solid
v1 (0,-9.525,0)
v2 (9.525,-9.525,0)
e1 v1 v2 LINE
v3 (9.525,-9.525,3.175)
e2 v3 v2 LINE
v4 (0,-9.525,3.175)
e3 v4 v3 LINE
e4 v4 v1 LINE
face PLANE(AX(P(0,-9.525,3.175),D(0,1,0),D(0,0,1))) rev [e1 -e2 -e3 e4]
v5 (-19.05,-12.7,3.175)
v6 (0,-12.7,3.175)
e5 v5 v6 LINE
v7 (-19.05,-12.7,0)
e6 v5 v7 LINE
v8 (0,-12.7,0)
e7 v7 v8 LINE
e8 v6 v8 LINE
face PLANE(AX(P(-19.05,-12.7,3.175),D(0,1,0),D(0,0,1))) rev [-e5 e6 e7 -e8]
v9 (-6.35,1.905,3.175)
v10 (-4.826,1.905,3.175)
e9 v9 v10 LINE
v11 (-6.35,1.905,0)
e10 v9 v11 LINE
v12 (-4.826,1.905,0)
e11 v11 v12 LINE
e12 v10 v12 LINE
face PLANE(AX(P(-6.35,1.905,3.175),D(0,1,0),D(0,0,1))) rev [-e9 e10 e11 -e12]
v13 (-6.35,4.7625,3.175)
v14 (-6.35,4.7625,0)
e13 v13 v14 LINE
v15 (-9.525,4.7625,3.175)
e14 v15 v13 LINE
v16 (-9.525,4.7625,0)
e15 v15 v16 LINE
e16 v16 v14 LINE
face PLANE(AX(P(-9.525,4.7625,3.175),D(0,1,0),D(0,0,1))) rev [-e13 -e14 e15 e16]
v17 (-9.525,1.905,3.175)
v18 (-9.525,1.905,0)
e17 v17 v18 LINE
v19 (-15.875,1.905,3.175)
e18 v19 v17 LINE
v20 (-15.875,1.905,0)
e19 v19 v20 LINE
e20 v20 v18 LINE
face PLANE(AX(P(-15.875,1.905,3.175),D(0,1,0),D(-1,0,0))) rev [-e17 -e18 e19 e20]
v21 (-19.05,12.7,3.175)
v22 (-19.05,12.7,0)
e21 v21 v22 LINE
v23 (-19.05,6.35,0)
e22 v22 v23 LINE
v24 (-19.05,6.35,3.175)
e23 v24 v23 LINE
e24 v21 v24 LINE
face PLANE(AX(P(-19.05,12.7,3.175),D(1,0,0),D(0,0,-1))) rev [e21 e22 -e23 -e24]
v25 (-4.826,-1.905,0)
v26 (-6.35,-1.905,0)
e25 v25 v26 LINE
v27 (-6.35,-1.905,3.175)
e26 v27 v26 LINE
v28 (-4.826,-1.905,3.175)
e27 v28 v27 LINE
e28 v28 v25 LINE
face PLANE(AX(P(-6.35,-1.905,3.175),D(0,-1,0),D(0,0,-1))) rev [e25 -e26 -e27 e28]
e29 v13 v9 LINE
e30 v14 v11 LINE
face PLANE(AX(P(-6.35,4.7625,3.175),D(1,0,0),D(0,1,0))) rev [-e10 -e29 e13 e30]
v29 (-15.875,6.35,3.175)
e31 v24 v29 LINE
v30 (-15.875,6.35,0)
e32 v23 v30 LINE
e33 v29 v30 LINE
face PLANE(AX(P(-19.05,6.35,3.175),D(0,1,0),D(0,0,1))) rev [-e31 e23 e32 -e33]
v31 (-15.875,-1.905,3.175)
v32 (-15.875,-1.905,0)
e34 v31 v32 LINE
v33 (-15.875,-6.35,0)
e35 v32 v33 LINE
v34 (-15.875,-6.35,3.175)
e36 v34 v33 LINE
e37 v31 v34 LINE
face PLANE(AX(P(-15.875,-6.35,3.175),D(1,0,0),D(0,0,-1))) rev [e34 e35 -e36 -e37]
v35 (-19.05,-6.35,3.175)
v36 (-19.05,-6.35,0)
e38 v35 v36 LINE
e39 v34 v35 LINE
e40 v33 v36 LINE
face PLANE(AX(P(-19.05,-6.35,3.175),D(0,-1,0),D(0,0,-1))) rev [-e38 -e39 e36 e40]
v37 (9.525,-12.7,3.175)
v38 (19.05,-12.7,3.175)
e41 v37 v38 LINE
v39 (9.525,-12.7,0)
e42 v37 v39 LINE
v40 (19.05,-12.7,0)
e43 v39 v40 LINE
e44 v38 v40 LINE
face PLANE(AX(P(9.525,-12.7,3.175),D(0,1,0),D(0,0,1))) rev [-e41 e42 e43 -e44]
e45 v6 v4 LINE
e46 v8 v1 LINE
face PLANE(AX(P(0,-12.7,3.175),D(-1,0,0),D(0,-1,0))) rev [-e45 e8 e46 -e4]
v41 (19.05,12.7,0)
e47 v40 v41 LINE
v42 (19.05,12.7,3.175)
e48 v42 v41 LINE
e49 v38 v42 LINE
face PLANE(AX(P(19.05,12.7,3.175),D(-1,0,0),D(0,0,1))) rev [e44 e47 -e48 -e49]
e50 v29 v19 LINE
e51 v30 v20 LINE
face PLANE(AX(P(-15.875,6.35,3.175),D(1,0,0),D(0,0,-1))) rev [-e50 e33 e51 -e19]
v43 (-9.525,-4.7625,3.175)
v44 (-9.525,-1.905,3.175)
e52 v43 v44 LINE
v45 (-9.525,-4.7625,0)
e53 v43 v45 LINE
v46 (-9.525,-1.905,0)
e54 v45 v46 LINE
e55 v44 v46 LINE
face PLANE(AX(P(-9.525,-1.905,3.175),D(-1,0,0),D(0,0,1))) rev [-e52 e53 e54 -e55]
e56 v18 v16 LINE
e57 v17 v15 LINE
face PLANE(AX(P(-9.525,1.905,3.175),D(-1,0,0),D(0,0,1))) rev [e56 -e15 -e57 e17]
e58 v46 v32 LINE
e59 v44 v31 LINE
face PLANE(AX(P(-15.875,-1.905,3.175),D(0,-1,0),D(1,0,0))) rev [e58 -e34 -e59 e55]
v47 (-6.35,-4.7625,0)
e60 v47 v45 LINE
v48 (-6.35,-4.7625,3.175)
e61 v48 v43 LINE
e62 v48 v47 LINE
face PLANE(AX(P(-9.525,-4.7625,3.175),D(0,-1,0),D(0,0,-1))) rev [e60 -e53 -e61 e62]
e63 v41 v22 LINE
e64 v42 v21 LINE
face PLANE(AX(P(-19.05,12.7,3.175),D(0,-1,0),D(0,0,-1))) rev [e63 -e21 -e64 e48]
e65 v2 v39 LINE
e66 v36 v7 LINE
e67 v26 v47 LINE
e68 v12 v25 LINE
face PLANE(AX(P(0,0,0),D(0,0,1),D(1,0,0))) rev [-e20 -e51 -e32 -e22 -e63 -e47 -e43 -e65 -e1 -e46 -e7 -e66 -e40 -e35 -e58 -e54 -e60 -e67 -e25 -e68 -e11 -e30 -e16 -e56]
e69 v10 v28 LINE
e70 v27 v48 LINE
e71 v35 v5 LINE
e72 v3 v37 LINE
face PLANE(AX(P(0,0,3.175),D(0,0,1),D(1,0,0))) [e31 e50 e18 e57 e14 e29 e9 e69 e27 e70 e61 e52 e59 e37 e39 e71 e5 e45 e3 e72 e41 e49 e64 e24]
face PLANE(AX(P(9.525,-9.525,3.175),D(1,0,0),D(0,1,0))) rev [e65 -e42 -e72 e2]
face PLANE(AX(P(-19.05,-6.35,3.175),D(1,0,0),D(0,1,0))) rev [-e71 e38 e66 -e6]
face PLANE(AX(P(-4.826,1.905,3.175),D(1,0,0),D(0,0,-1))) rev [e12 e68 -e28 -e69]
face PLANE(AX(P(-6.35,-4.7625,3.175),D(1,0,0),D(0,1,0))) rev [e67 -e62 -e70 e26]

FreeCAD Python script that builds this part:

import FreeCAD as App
import Part
import Sketcher
from FreeCAD import Vector
Q = App.Units.Quantity

doc = App.newDocument("Part")
body = doc.addObject("PartDesign::Body", "Body")

# Sketch on XY plane
sketch1 = body.newObject("Sketcher::SketchObject", "Sketch")
sketch1.AttachmentSupport = (doc.getObject("XY_Plane"), [""])
sketch1.MapMode = "FlatFace"
sketch1.addGeometry([
    Part.LineSegment(Vector(19.1, 12.7, 0), Vector(-19.1, 12.7, 0)),  # 0
    Part.LineSegment(Vector(-19.1, 12.7, 0), Vector(-19.1, 6.3, 0)),  # 1
    Part.LineSegment(Vector(-19.1, 6.3, 0), Vector(-15.9, 6.3, 0)),  # 2
    Part.LineSegment(Vector(-15.9, 6.3, 0), Vector(-15.9, 1.9, 0)),  # 3
    Part.LineSegment(Vector(-15.9, 1.9, 0), Vector(-9.5, 1.9, 0)),  # 4
    Part.LineSegment(Vector(-9.5, 1.9, 0), Vector(-9.5, 4.8, 0)),  # 5
    Part.LineSegment(Vector(-9.5, 4.8, 0), Vector(-6.3, 4.8, 0)),  # 6
    Part.LineSegment(Vector(-6.3, 4.8, 0), Vector(-6.3, 1.9, 0)),  # 7
    Part.LineSegment(Vector(-6.3, 1.9, 0), Vector(-4.8, 1.9, 0)),  # 8
    Part.LineSegment(Vector(-4.8, 1.9, 0), Vector(-4.8, -1.9, 0)),  # 9
    Part.LineSegment(Vector(-4.8, -1.9, 0), Vector(-6.3, -1.9, 0)),  # 10
    Part.LineSegment(Vector(-6.3, -1.9, 0), Vector(-6.3, -4.8, 0)),  # 11
    Part.LineSegment(Vector(-6.3, -4.8, 0), Vector(-9.5, -4.8, 0)),  # 12
    Part.LineSegment(Vector(-9.5, -4.8, 0), Vector(-9.5, -1.9, 0)),  # 13
    Part.LineSegment(Vector(-9.5, -1.9, 0), Vector(-15.9, -1.9, 0)),  # 14
    Part.LineSegment(Vector(-15.9, -1.9, 0), Vector(-15.9, -6.3, 0)),  # 15
    Part.LineSegment(Vector(-15.9, -6.3, 0), Vector(-19.1, -6.3, 0)),  # 16
    Part.LineSegment(Vector(-19.1, -6.3, 0), Vector(-19.1, -12.7, 0)),  # 17
    Part.LineSegment(Vector(-19.1, -12.7, 0), Vector(0, -12.7, 0)),  # 18
    Part.LineSegment(Vector(0, -12.7, 0), Vector(0, -9.5, 0)),  # 19
    Part.LineSegment(Vector(0, -9.5, 0), Vector(9.5, -9.5, 0)),  # 20
    Part.LineSegment(Vector(9.5, -9.5, 0), Vector(9.5, -12.7, 0)),  # 21
    Part.LineSegment(Vector(9.5, -12.7, 0), Vector(19.1, -12.7, 0)),  # 22
    Part.LineSegment(Vector(19.1, -12.7, 0), Vector(19.1, 12.7, 0)),  # 23
], False)
sketch1.addConstraint([
    Sketcher.Constraint("Coincident", 0, 2, 1, 1),
    Sketcher.Constraint("Coincident", 1, 2, 2, 1),
    Sketcher.Constraint("Coincident", 2, 2, 3, 1),
    Sketcher.Constraint("Coincident", 3, 2, 4, 1),
    Sketcher.Constraint("Coincident", 4, 2, 5, 1),
    Sketcher.Constraint("Coincident", 5, 2, 6, 1),
    Sketcher.Constraint("Coincident", 6, 2, 7, 1),
    Sketcher.Constraint("Coincident", 7, 2, 8, 1),
    Sketcher.Constraint("Coincident", 8, 2, 9, 1),
    Sketcher.Constraint("Coincident", 9, 2, 10, 1),
    Sketcher.Constraint("Coincident", 10, 2, 11, 1),
    Sketcher.Constraint("Coincident", 11, 2, 12, 1),
    Sketcher.Constraint("Coincident", 12, 2, 13, 1),
    Sketcher.Constraint("Coincident", 13, 2, 14, 1),
    Sketcher.Constraint("Coincident", 14, 2, 15, 1),
    Sketcher.Constraint("Coincident", 15, 2, 16, 1),
    Sketcher.Constraint("Coincident", 16, 2, 17, 1),
    Sketcher.Constraint("Coincident", 17, 2, 18, 1),
    Sketcher.Constraint("Coincident", 18, 2, 19, 1),
    Sketcher.Constraint("Coincident", 19, 2, 20, 1),
    Sketcher.Constraint("Coincident", 20, 2, 21, 1),
    Sketcher.Constraint("Coincident", 21, 2, 22, 1),
    Sketcher.Constraint("Coincident", 22, 2, 23, 1),
    Sketcher.Constraint("Coincident", 23, 2, 0, 1),
    Sketcher.Constraint("Horizontal", 0),
    Sketcher.Constraint("Vertical", 1),
    Sketcher.Constraint("Horizontal", 2),
    Sketcher.Constraint("Vertical", 3),
    Sketcher.Constraint("Horizontal", 4),
    Sketcher.Constraint("Vertical", 5),
    Sketcher.Constraint("Horizontal", 6),
    Sketcher.Constraint("Vertical", 7),
    Sketcher.Constraint("Horizontal", 8),
    Sketcher.Constraint("Vertical", 9),
    Sketcher.Constraint("Horizontal", 10),
    Sketcher.Constraint("Vertical", 11),
    Sketcher.Constraint("Horizontal", 12),
    Sketcher.Constraint("Vertical", 13),
    Sketcher.Constraint("Horizontal", 14),
    Sketcher.Constraint("Vertical", 15),
    Sketcher.Constraint("Horizontal", 16),
    Sketcher.Constraint("Vertical", 17),
    Sketcher.Constraint("Horizontal", 18),
    Sketcher.Constraint("Vertical", 19),
    Sketcher.Constraint("Horizontal", 20),
    Sketcher.Constraint("Vertical", 21),
    Sketcher.Constraint("Horizontal", 22),
    Sketcher.Constraint("Vertical", 23),
    Sketcher.Constraint("Symmetric", 0, 2, 22, 2, -1, 1),
    Sketcher.Constraint("Symmetric", 17, 2, 23, 2, -1, 1),
    Sketcher.Constraint("Symmetric", 7, 2, 10, 2, -1),
    Sketcher.Constraint("Symmetric", 5, 2, 12, 2, -1),
    Sketcher.Constraint("Symmetric", 3, 2, 14, 2, -1),
    Sketcher.Constraint("PointOnObject", 18, 2, -2),
    Sketcher.Constraint("Horizontal", 4, 2, 7, 2),
    Sketcher.Constraint("Equal", 2, 6),
    Sketcher.Constraint("Equal", 20, 22),
    Sketcher.Constraint("Equal", 14, 1),
    Sketcher.Constraint("Equal", 3, 15),
    Sketcher.Constraint("Equal", 16, 19),
    Sketcher.Constraint("DistanceY", 23, 1, 23, 2, Q("1 in")),
    Sketcher.Constraint("DistanceX", 0, 2, 0, 1, Q("1.5 in")),
    Sketcher.Constraint("DistanceX", 6, 2, 23, 2, Q("1 in")),
    Sketcher.Constraint("DistanceX", 4, 1, 4, 2, Q("0.25 in")),
    Sketcher.Constraint("DistanceX", 8, 1, 8, 2, Q("0.06 in")),
    Sketcher.Constraint("DistanceY", 9, 2, 9, 1, Q("0.15 in")),
    Sketcher.Constraint("DistanceY", 5, 1, 5, 2, Q("0.1125 in")),
])
pad1 = body.newObject("PartDesign::Pad", "Pad")
pad1.Profile = sketch1
pad1.Length = Q("0.125 in")

doc.recompute()
